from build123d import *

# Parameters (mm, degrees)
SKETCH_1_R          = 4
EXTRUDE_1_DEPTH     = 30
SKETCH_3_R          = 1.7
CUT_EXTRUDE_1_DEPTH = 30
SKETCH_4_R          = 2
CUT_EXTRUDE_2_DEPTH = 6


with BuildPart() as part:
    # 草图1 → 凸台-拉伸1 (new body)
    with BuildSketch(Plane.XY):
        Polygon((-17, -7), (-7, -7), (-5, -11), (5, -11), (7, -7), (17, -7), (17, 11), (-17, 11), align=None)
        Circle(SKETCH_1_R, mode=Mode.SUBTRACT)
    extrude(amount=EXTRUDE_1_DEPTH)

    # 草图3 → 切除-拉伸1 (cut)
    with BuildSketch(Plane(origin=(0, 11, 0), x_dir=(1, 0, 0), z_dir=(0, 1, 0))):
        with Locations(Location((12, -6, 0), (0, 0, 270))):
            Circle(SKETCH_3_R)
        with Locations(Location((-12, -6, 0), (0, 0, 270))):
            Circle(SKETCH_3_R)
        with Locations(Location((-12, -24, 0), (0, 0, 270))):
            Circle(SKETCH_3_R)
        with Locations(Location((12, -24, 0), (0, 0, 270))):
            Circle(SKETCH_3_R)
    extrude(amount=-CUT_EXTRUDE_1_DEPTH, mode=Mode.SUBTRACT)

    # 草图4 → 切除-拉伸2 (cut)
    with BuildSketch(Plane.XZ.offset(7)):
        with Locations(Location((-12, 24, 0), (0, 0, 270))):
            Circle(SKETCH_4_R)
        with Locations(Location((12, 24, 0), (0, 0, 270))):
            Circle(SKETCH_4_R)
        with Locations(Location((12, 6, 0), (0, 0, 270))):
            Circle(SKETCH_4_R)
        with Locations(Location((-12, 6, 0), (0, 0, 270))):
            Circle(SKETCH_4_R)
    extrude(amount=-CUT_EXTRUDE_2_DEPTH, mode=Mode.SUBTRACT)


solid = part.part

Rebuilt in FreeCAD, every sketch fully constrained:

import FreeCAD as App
import Part
import Sketcher
from FreeCAD import Vector
Q = App.Units.Quantity

doc = App.newDocument("Part")
body = doc.addObject("PartDesign::Body", "Body")

sketch1 = body.newObject("Sketcher::SketchObject", "Sketch")
sketch1.AttachmentSupport = (doc.getObject("XY_Plane"), [""])
sketch1.MapMode = "FlatFace"
sketch1.addGeometry([
    Part.LineSegment(Vector(-17, -7, 0), Vector(-7, -7, 0)),
    Part.LineSegment(Vector(-7, -7, 0), Vector(-5, -11, 0)),
    Part.LineSegment(Vector(-5, -11, 0), Vector(5, -11, 0)),
    Part.LineSegment(Vector(5, -11, 0), Vector(7, -7, 0)),
    Part.LineSegment(Vector(7, -7, 0), Vector(17, -7, 0)),
    Part.LineSegment(Vector(17, -7, 0), Vector(17, 11, 0)),
    Part.LineSegment(Vector(17, 11, 0), Vector(-17, 11, 0)),
    Part.LineSegment(Vector(-17, 11, 0), Vector(-17, -7, 0)),
    Part.Circle(Vector(0, 0, 0), Vector(0, 0, 1), 4),
], False)
sketch1.addConstraint([
    Sketcher.Constraint("Coincident", 0, 2, 1, 1),
    Sketcher.Constraint("Coincident", 1, 2, 2, 1),
    Sketcher.Constraint("Coincident", 2, 2, 3, 1),
    Sketcher.Constraint("Coincident", 3, 2, 4, 1),
    Sketcher.Constraint("Coincident", 4, 2, 5, 1),
    Sketcher.Constraint("Coincident", 5, 2, 6, 1),
    Sketcher.Constraint("Coincident", 6, 2, 7, 1),
    Sketcher.Constraint("Coincident", 7, 2, 0, 1),
    Sketcher.Constraint("Horizontal", 0),
    Sketcher.Constraint("Horizontal", 2),
    Sketcher.Constraint("Horizontal", 4),
    Sketcher.Constraint("Vertical", 5),
    Sketcher.Constraint("Horizontal", 6),
    Sketcher.Constraint("Vertical", 7),
    Sketcher.Constraint("Coincident", 8, 3, -1, 1),
    Sketcher.Constraint("Symmetric", 0, 2, 3, 2, -2),
    Sketcher.Constraint("Equal", 0, 2),
    Sketcher.Constraint("Equal", 2, 4),
    Sketcher.Constraint("Equal", 1, 3),
    Sketcher.Constraint("Diameter", 8, Q("8 mm")),
    Sketcher.Constraint("DistanceX", 0, 1, 0, 2, Q("10 mm")),
    Sketcher.Constraint("DistanceX", 6, 2, 6, 1, Q("34 mm")),
    Sketcher.Constraint("DistanceY", 5, 1, 5, 2, Q("18 mm")),
    Sketcher.Constraint("DistanceY", 0, 2, -1, 1, Q("7 mm")),
    Sketcher.Constraint("DistanceY", 1, 2, -1, 1, Q("11 mm")),
])
pad1 = body.newObject("PartDesign::Pad", "Pad")
pad1.Profile = sketch1
pad1.Length = 30

sketch2 = body.newObject("Sketcher::SketchObject", "Sketch001")
sketch2.AttachmentSupport = (doc.getObject("XZ_Plane"), [""])
sketch2.MapMode = "FlatFace"
sketch2.AttachmentOffset = App.Placement(Vector(0, 0, -11), App.Rotation())
sketch2.addGeometry([
    Part.Circle(Vector(12, 6, 0), Vector(0, 0, 1), 1.7),
    Part.Circle(Vector(-12, 6, 0), Vector(0, 0, 1), 1.7),
    Part.Circle(Vector(-12, 24, 0), Vector(0, 0, 1), 1.7),
    Part.Circle(Vector(12, 24, 0), Vector(0, 0, 1), 1.7),
], False)
sketch2.addConstraint([
    Sketcher.Constraint("Equal", 0, 1),
    Sketcher.Constraint("Equal", 1, 2),
    Sketcher.Constraint("Equal", 2, 3),
    Sketcher.Constraint("Symmetric", 0, 3, 1, 3, -2),
    Sketcher.Constraint("Symmetric", 2, 3, 3, 3, -2),
    Sketcher.Constraint("Vertical", 1, 3, 2, 3),
    Sketcher.Constraint("Diameter", 0, Q("3.4 mm")),
    Sketcher.Constraint("DistanceX", -1, 1, 0, 3, Q("12 mm")),
    Sketcher.Constraint("DistanceY", -1, 1, 0, 3, Q("6 mm")),
    Sketcher.Constraint("DistanceY", -1, 1, 2, 3, Q("24 mm")),
])
pocket1 = body.newObject("PartDesign::Pocket", "Pocket")
pocket1.Profile = sketch2
pocket1.Length = 30
pocket1.Reversed = True

sketch3 = body.newObject("Sketcher::SketchObject", "Sketch002")
sketch3.AttachmentSupport = (doc.getObject("XZ_Plane"), [""])
sketch3.MapMode = "FlatFace"
sketch3.AttachmentOffset = App.Placement(Vector(0, 0, 7), App.Rotation())
sketch3.addGeometry([
    Part.Circle(Vector(-12, 24, 0), Vector(0, 0, 1), 2),
    Part.Circle(Vector(12, 24, 0), Vector(0, 0, 1), 2),
    Part.Circle(Vector(12, 6, 0), Vector(0, 0, 1), 2),
    Part.Circle(Vector(-12, 6, 0), Vector(0, 0, 1), 2),
], False)
sketch3.addConstraint([
    Sketcher.Constraint("Equal", 0, 1),
    Sketcher.Constraint("Equal", 1, 2),
    Sketcher.Constraint("Equal", 2, 3),
    Sketcher.Constraint("Symmetric", 0, 3, 1, 3, -2),
    Sketcher.Constraint("Symmetric", 2, 3, 3, 3, -2),
    Sketcher.Constraint("Vertical", 1, 3, 2, 3),
    Sketcher.Constraint("Diameter", 0, Q("4 mm")),
    Sketcher.Constraint("DistanceX", 0, 3, -1, 1, Q("12 mm")),
    Sketcher.Constraint("DistanceY", -1, 1, 0, 3, Q("24 mm")),
    Sketcher.Constraint("DistanceY", -1, 1, 2, 3, Q("6 mm")),
])
pocket2 = body.newObject("PartDesign::Pocket", "Pocket001")
pocket2.Profile = sketch3
pocket2.Length = 6

doc.recompute()
